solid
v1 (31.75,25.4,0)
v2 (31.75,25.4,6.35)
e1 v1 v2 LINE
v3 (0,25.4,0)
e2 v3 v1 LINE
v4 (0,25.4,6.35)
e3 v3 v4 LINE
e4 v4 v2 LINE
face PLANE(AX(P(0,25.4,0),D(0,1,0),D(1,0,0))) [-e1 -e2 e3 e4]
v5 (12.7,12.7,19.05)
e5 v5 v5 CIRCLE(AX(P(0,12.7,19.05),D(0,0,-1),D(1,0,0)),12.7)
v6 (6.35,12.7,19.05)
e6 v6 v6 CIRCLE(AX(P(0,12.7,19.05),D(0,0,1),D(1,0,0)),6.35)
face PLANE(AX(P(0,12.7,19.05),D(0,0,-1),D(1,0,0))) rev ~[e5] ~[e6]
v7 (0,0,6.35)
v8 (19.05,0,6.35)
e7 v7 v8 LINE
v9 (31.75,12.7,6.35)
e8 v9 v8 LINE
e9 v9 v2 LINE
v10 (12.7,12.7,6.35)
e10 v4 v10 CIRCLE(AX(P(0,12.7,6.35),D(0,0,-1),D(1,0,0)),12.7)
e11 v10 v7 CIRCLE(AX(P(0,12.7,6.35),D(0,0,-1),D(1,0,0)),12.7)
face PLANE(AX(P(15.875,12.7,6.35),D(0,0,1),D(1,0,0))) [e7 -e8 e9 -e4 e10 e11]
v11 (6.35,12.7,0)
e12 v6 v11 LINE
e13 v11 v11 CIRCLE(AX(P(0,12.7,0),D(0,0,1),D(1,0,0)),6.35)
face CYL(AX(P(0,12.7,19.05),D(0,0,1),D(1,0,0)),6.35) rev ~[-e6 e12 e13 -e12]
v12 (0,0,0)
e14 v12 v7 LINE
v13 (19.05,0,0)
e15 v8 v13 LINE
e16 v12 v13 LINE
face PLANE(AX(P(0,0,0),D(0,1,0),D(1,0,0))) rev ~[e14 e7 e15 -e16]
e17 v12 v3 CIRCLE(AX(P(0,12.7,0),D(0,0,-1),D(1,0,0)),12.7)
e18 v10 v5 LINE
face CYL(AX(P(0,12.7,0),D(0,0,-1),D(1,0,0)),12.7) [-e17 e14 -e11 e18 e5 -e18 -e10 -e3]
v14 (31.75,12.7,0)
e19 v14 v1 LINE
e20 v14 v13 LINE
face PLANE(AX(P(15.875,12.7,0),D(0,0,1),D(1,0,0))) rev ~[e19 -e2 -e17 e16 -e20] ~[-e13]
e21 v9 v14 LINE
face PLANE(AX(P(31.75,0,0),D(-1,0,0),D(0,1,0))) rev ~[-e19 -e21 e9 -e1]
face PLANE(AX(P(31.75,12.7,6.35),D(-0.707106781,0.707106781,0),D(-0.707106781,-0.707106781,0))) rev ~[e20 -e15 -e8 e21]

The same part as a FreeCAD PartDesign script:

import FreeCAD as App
import Part
import Sketcher
from FreeCAD import Vector
Q = App.Units.Quantity


def add_polygon(sketch, points):
    """Adds a closed chain of lines whose ends are joined by coincident constraints."""
    first, n = sketch.GeometryCount, len(points)
    for a, b in zip(points, points[1:] + points[:1]):
        sketch.addGeometry(Part.LineSegment(App.Vector(*a, 0), App.Vector(*b, 0)), False)
    for i in range(n):
        sketch.addConstraint(Sketcher.Constraint("Coincident", first + i, 2, first + (i + 1) % n, 1))

doc = App.newDocument("Part")
body = doc.addObject("PartDesign::Body", "Body")

# Sketch on XY plane
sketch1 = body.newObject("Sketcher::SketchObject", "Sketch")
sketch1.AttachmentSupport = (doc.getObject("XY_Plane"), [""])
sketch1.MapMode = "FlatFace"
add_polygon(sketch1, [(0, 25.4), (0, 0), (31.75, 0), (31.75, 25.4)])  # lines 0-3
sketch1.addConstraint(Sketcher.Constraint("Vertical", 0))
sketch1.addConstraint(Sketcher.Constraint("Horizontal", 1))
sketch1.addConstraint(Sketcher.Constraint("Vertical", 2))
sketch1.addConstraint(Sketcher.Constraint("Horizontal", 3))
sketch1.addConstraint(Sketcher.Constraint("Coincident", 0, 2, -1, 1))
sketch1.addConstraint(Sketcher.Constraint("DistanceY", 0, 2, 0, 1, Q("1 in")))
sketch1.addConstraint(Sketcher.Constraint("DistanceX", 1, 1, 1, 2, Q("1.25 in")))
pad1 = body.newObject("PartDesign::Pad", "Pad")
pad1.Profile = sketch1
pad1.Length = Q("0.25 in")

# Sketch on XY plane
sketch2 = body.newObject("Sketcher::SketchObject", "Sketch001")
sketch2.AttachmentSupport = (doc.getObject("XY_Plane"), [""])
sketch2.MapMode = "FlatFace"
sketch2.addGeometry(Part.Circle(Vector(0, 12.7, 0), Vector(0, 0, 1), 12.7), False)
sketch2.addConstraint(Sketcher.Constraint("PointOnObject", 0, 3, -2))
sketch2.addConstraint(Sketcher.Constraint("Diameter", 0, Q("1 in")))
sketch2.addConstraint(Sketcher.Constraint("DistanceY", -1, 1, 0, 3, Q("0.5 in")))
pad2 = body.newObject("PartDesign::Pad", "Pad001")
pad2.Profile = sketch2
pad2.Length = Q("0.75 in")

# Sketch on XY plane
sketch3 = body.newObject("Sketcher::SketchObject", "Sketch002")
sketch3.AttachmentSupport = (doc.getObject("XY_Plane"), [""])
sketch3.MapMode = "FlatFace"
sketch3.AttachmentOffset = App.Placement(Vector(0, 0, 0.75 * 25.4), App.Rotation())
sketch3.addGeometry(Part.Circle(Vector(0, 12.7, 0), Vector(0, 0, 1), 6.35), False)
sketch3.addConstraint(Sketcher.Constraint("PointOnObject", 0, 3, -2))
sketch3.addConstraint(Sketcher.Constraint("Diameter", 0, Q("0.5 in")))
sketch3.addConstraint(Sketcher.Constraint("DistanceY", -1, 1, 0, 3, Q("0.5 in")))
pocket1 = body.newObject("PartDesign::Pocket", "Pocket")
pocket1.Profile = sketch3
pocket1.Length = Q("1 in")

# Sketch on XY plane
sketch4 = body.newObject("Sketcher::SketchObject", "Sketch003")
sketch4.AttachmentSupport = (doc.getObject("XY_Plane"), [""])
sketch4.MapMode = "FlatFace"
sketch4.AttachmentOffset = App.Placement(Vector(0, 0, 0.25 * 25.4), App.Rotation())
add_polygon(sketch4, [(19.05, 0), (31.75, 0), (31.75, 12.7)])  # lines 0-2
sketch4.addConstraint(Sketcher.Constraint("Horizontal", 0))
sketch4.addConstraint(Sketcher.Constraint("Vertical", 1))
sketch4.addConstraint(Sketcher.Constraint("PointOnObject", 0, 2, -1))
sketch4.addConstraint(Sketcher.Constraint("Equal", 0, 1))
sketch4.addConstraint(Sketcher.Constraint("DistanceX", 0, 1, 0, 2, Q("0.5 in")))
sketch4.addConstraint(Sketcher.Constraint("DistanceX", -1, 1, 0, 2, Q("1.25 in")))
pocket2 = body.newObject("PartDesign::Pocket", "Pocket001")
pocket2.Profile = sketch4
pocket2.Length = Q("1 in")

doc.recompute()
